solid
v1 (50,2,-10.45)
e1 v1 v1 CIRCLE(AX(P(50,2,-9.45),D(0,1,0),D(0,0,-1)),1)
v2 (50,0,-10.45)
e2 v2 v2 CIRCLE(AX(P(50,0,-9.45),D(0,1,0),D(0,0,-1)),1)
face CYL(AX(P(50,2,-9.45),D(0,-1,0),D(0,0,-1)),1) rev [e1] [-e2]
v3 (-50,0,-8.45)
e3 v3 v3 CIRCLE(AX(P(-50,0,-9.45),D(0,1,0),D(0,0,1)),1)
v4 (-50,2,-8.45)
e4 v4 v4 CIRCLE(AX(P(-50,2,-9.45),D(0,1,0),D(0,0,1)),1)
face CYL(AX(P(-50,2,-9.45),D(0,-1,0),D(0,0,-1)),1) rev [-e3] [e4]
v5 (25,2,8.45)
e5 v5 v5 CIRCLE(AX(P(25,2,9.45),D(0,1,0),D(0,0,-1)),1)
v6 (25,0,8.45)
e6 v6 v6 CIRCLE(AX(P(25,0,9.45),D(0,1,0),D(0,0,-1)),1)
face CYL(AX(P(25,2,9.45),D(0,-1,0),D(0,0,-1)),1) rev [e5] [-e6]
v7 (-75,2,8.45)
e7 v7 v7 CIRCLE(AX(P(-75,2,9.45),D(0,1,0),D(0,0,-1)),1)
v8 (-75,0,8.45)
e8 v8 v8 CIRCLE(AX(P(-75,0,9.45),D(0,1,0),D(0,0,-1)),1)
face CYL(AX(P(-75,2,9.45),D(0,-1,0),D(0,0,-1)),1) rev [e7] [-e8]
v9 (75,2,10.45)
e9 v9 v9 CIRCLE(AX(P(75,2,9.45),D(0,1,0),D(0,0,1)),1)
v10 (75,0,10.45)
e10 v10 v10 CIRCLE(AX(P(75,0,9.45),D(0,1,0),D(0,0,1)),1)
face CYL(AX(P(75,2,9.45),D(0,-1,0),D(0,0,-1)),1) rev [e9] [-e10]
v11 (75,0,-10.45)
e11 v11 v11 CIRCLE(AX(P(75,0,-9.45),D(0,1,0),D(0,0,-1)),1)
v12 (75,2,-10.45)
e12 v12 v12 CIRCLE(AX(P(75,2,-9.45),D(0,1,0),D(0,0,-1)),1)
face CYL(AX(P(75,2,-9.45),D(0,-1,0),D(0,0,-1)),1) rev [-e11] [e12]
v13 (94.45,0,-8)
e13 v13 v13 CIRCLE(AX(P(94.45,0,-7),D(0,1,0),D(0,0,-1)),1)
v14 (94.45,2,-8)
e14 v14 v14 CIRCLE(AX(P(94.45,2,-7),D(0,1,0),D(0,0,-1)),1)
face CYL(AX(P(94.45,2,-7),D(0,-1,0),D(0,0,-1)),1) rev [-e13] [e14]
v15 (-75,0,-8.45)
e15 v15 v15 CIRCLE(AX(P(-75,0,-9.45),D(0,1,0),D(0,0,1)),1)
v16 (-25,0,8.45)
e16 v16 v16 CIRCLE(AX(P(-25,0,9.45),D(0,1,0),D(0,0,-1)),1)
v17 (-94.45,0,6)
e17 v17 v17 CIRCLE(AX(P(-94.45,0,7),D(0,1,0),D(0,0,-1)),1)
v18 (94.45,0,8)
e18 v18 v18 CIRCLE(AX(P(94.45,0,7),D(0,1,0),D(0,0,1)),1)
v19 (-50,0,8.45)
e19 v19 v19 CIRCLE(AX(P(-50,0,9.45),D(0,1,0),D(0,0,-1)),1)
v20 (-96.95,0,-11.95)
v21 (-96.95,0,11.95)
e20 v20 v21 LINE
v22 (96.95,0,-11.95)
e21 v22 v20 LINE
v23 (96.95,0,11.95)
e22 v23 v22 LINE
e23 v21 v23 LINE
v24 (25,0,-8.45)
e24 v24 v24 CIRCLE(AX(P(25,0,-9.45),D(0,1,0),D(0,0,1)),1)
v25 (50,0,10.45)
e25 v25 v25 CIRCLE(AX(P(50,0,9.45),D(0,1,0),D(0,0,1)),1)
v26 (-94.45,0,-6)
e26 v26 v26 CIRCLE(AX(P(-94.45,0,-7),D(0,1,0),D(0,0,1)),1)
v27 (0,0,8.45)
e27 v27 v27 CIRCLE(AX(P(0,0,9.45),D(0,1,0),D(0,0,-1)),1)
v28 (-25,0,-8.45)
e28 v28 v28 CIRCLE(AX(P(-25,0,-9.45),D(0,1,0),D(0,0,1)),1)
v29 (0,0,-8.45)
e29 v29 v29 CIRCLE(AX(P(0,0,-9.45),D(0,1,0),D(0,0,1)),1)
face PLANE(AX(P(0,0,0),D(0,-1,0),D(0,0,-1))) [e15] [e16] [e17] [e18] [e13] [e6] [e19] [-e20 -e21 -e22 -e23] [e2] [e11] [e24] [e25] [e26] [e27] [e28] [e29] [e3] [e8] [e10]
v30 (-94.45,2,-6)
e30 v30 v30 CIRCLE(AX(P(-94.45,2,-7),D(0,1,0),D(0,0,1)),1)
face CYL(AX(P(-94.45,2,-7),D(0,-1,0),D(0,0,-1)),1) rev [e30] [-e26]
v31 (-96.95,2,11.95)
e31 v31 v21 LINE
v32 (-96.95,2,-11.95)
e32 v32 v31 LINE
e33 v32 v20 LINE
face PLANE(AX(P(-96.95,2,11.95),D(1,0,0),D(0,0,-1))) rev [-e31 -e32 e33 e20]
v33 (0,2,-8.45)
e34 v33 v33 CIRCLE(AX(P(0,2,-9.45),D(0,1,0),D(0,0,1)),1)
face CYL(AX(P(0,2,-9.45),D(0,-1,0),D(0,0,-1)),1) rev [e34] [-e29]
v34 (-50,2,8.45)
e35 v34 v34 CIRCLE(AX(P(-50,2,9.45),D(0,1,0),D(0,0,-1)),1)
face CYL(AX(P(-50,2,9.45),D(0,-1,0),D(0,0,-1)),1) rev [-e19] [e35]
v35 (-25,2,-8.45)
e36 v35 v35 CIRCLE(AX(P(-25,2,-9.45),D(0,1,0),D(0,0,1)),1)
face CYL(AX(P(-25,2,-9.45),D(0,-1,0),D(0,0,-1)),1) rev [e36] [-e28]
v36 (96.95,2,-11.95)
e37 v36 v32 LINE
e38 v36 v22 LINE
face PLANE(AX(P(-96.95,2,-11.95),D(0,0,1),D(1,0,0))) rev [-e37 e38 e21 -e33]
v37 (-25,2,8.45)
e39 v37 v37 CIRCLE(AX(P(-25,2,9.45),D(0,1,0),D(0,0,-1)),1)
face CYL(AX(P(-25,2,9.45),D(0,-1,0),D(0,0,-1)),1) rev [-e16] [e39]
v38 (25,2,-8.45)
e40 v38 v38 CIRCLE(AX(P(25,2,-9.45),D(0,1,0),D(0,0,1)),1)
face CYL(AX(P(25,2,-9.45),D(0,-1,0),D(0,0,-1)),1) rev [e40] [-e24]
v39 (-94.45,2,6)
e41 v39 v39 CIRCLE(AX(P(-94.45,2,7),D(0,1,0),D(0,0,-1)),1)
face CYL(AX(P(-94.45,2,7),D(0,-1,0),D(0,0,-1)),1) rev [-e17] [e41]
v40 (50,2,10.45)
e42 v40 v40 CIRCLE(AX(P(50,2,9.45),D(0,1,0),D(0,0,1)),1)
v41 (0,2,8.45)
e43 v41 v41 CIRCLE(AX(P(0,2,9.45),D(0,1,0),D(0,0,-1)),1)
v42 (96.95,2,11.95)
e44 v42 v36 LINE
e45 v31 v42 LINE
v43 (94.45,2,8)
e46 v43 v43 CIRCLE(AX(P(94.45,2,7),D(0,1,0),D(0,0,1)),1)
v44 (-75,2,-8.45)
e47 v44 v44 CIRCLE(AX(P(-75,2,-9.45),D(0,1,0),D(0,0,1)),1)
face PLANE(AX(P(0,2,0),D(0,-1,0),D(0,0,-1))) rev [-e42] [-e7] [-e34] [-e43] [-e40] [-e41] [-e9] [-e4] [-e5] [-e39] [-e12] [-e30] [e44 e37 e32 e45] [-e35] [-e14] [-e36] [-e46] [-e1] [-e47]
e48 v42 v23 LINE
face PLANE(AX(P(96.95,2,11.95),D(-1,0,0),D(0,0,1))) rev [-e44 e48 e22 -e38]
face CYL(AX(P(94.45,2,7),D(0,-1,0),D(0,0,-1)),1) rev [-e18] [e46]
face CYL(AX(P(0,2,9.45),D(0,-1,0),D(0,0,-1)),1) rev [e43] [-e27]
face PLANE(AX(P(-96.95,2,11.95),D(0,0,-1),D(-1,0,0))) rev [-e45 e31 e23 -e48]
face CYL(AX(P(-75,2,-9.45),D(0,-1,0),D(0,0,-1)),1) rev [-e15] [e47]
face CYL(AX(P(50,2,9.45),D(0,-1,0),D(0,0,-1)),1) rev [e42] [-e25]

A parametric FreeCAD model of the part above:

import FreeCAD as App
import Part
import Sketcher

doc = App.newDocument("Part")
body = doc.addObject("PartDesign::Body", "Body")

sketch1 = body.newObject("Sketcher::SketchObject", "Sketch")
sketch1.AttachmentSupport = (doc.getObject("XZ_Plane"), [""])
sketch1.MapMode = "FlatFace"
sketch1.addGeometry(Part.LineSegment(App.Vector(-96.95, -11.95, 0), App.Vector(-96.95, 11.95, 0)), False)
sketch1.addGeometry(Part.LineSegment(App.Vector(-96.95, 11.95, 0), App.Vector(96.95, 11.95, 0)), False)
sketch1.addGeometry(Part.LineSegment(App.Vector(96.95, 11.95, 0), App.Vector(96.95, -11.95, 0)), False)
sketch1.addGeometry(Part.LineSegment(App.Vector(96.95, -11.95, 0), App.Vector(-96.95, -11.95, 0)), False)
sketch1.addGeometry(Part.Circle(App.Vector(-75, 9.45, 0), App.Vector(0, 0, 1), 1), False)
sketch1.addGeometry(Part.Circle(App.Vector(-50, 9.45, 0), App.Vector(0, 0, 1), 1), False)
sketch1.addGeometry(Part.Circle(App.Vector(-94.45, 7, 0), App.Vector(0, 0, 1), 1), False)
sketch1.addGeometry(Part.Circle(App.Vector(-25, 9.45, 0), App.Vector(0, 0, 1), 1), False)
sketch1.addGeometry(Part.Circle(App.Vector(0, 9.45, 0), App.Vector(0, 0, 1), 1), False)
sketch1.addGeometry(Part.Circle(App.Vector(25, 9.45, 0), App.Vector(0, 0, 1), 1), False)
sketch1.addGeometry(Part.Circle(App.Vector(50, 9.45, 0), App.Vector(0, 0, 1), 1), False)
sketch1.addGeometry(Part.Circle(App.Vector(75, 9.45, 0), App.Vector(0, 0, 1), 1), False)
sketch1.addGeometry(Part.Circle(App.Vector(94.45, 7, 0), App.Vector(0, 0, 1), 1), False)
sketch1.addGeometry(Part.Circle(App.Vector(-94.45, -7, 0), App.Vector(0, 0, 1), 1), False)
sketch1.addGeometry(Part.Circle(App.Vector(-75, -9.45, 0), App.Vector(0, 0, 1), 1), False)
sketch1.addGeometry(Part.Circle(App.Vector(-50, -9.45, 0), App.Vector(0, 0, 1), 1), False)
sketch1.addGeometry(Part.Circle(App.Vector(-25, -9.45, 0), App.Vector(0, 0, 1), 1), False)
sketch1.addGeometry(Part.Circle(App.Vector(0, -9.45, 0), App.Vector(0, 0, 1), 1), False)
sketch1.addGeometry(Part.Circle(App.Vector(25, -9.45, 0), App.Vector(0, 0, 1), 1), False)
sketch1.addGeometry(Part.Circle(App.Vector(94.45, -7, 0), App.Vector(0, 0, 1), 1), False)
sketch1.addGeometry(Part.Circle(App.Vector(50, -9.45, 0), App.Vector(0, 0, 1), 1), False)
sketch1.addGeometry(Part.Circle(App.Vector(75, -9.45, 0), App.Vector(0, 0, 1), 1), False)
sketch1.addConstraint(Sketcher.Constraint("Coincident", 0, 2, 1, 1))
sketch1.addConstraint(Sketcher.Constraint("Coincident", 1, 2, 2, 1))
sketch1.addConstraint(Sketcher.Constraint("Coincident", 2, 2, 3, 1))
sketch1.addConstraint(Sketcher.Constraint("Coincident", 3, 2, 0, 1))
sketch1.addConstraint(Sketcher.Constraint("Vertical", 0))
sketch1.addConstraint(Sketcher.Constraint("Horizontal", 1))
sketch1.addConstraint(Sketcher.Constraint("Vertical", 2))
sketch1.addConstraint(Sketcher.Constraint("Horizontal", 3))
sketch1.addConstraint(Sketcher.Constraint("Equal", 4, 5))
sketch1.addConstraint(Sketcher.Constraint("Equal", 5, 6))
sketch1.addConstraint(Sketcher.Constraint("Equal", 6, 7))
sketch1.addConstraint(Sketcher.Constraint("Equal", 7, 8))
sketch1.addConstraint(Sketcher.Constraint("Equal", 8, 9))
sketch1.addConstraint(Sketcher.Constraint("Equal", 9, 10))
sketch1.addConstraint(Sketcher.Constraint("Equal", 10, 11))
sketch1.addConstraint(Sketcher.Constraint("Equal", 11, 12))
sketch1.addConstraint(Sketcher.Constraint("Equal", 12, 13))
sketch1.addConstraint(Sketcher.Constraint("Equal", 13, 14))
sketch1.addConstraint(Sketcher.Constraint("Equal", 14, 15))
sketch1.addConstraint(Sketcher.Constraint("Equal", 15, 16))
sketch1.addConstraint(Sketcher.Constraint("Equal", 16, 17))
sketch1.addConstraint(Sketcher.Constraint("Equal", 17, 18))
sketch1.addConstraint(Sketcher.Constraint("Equal", 18, 19))
sketch1.addConstraint(Sketcher.Constraint("Equal", 19, 20))
sketch1.addConstraint(Sketcher.Constraint("Equal", 20, 21))
sketch1.addConstraint(Sketcher.Constraint("Symmetric", 12, 3, 13, 3, -1, 1))
sketch1.addConstraint(Sketcher.Constraint("Symmetric", 11, 3, 14, 3, -1, 1))
sketch1.addConstraint(Sketcher.Constraint("Symmetric", 10, 3, 15, 3, -1, 1))
sketch1.addConstraint(Sketcher.Constraint("Symmetric", 9, 3, 16, 3, -1, 1))
sketch1.addConstraint(Sketcher.Constraint("Symmetric", 8, 3, 17, 3, -1, 1))
sketch1.addConstraint(Sketcher.Constraint("Symmetric", 7, 3, 18, 3, -1, 1))
sketch1.addConstraint(Sketcher.Constraint("Symmetric", 6, 3, 19, 3, -1, 1))
sketch1.addConstraint(Sketcher.Constraint("Symmetric", 5, 3, 20, 3, -1, 1))
sketch1.addConstraint(Sketcher.Constraint("Symmetric", 4, 3, 21, 3, -1, 1))
sketch1.addConstraint(Sketcher.Constraint("Symmetric", 0, 2, 2, 2, -1, 1))
sketch1.addConstraint(Sketcher.Constraint("Symmetric", 7, 3, 9, 3, -2))
sketch1.addConstraint(Sketcher.Constraint("Symmetric", 5, 3, 10, 3, -2))
sketch1.addConstraint(Sketcher.Constraint("Symmetric", 4, 3, 11, 3, -2))
sketch1.addConstraint(Sketcher.Constraint("Symmetric", 6, 3, 12, 3, -2))
sketch1.addConstraint(Sketcher.Constraint("PointOnObject", 8, 3, -2))
sketch1.addConstraint(Sketcher.Constraint("Horizontal", 4, 3, 5, 3))
sketch1.addConstraint(Sketcher.Constraint("Horizontal", 5, 3, 7, 3))
sketch1.addConstraint(Sketcher.Constraint("Horizontal", 7, 3, 8, 3))
sketch1.addConstraint(Sketcher.Constraint("Diameter", 4, 2.0))
sketch1.addConstraint(Sketcher.Constraint("DistanceX", 1, 1, 1, 2, 193.9))
sketch1.addConstraint(Sketcher.Constraint("DistanceY", 0, 1, 0, 2, 23.9))
sketch1.addConstraint(Sketcher.Constraint("DistanceX", 4, 3, -1, 1, 75.0))
sketch1.addConstraint(Sketcher.Constraint("DistanceX", 5, 3, -1, 1, 50.0))
sketch1.addConstraint(Sketcher.Constraint("DistanceY", -1, 1, 6, 3, 7.0))
sketch1.addConstraint(Sketcher.Constraint("DistanceX", 7, 3, -1, 1, 25.0))
sketch1.addConstraint(Sketcher.Constraint("DistanceY", 14, 3, 4, 3, 18.9))
sketch1.addConstraint(Sketcher.Constraint("DistanceX", 0, 2, 6, 3, 2.5))
pad1 = body.newObject("PartDesign::Pad", "Pad")
pad1.Profile = sketch1
pad1.Length = 2
pad1.Reversed = True

doc.recompute()
